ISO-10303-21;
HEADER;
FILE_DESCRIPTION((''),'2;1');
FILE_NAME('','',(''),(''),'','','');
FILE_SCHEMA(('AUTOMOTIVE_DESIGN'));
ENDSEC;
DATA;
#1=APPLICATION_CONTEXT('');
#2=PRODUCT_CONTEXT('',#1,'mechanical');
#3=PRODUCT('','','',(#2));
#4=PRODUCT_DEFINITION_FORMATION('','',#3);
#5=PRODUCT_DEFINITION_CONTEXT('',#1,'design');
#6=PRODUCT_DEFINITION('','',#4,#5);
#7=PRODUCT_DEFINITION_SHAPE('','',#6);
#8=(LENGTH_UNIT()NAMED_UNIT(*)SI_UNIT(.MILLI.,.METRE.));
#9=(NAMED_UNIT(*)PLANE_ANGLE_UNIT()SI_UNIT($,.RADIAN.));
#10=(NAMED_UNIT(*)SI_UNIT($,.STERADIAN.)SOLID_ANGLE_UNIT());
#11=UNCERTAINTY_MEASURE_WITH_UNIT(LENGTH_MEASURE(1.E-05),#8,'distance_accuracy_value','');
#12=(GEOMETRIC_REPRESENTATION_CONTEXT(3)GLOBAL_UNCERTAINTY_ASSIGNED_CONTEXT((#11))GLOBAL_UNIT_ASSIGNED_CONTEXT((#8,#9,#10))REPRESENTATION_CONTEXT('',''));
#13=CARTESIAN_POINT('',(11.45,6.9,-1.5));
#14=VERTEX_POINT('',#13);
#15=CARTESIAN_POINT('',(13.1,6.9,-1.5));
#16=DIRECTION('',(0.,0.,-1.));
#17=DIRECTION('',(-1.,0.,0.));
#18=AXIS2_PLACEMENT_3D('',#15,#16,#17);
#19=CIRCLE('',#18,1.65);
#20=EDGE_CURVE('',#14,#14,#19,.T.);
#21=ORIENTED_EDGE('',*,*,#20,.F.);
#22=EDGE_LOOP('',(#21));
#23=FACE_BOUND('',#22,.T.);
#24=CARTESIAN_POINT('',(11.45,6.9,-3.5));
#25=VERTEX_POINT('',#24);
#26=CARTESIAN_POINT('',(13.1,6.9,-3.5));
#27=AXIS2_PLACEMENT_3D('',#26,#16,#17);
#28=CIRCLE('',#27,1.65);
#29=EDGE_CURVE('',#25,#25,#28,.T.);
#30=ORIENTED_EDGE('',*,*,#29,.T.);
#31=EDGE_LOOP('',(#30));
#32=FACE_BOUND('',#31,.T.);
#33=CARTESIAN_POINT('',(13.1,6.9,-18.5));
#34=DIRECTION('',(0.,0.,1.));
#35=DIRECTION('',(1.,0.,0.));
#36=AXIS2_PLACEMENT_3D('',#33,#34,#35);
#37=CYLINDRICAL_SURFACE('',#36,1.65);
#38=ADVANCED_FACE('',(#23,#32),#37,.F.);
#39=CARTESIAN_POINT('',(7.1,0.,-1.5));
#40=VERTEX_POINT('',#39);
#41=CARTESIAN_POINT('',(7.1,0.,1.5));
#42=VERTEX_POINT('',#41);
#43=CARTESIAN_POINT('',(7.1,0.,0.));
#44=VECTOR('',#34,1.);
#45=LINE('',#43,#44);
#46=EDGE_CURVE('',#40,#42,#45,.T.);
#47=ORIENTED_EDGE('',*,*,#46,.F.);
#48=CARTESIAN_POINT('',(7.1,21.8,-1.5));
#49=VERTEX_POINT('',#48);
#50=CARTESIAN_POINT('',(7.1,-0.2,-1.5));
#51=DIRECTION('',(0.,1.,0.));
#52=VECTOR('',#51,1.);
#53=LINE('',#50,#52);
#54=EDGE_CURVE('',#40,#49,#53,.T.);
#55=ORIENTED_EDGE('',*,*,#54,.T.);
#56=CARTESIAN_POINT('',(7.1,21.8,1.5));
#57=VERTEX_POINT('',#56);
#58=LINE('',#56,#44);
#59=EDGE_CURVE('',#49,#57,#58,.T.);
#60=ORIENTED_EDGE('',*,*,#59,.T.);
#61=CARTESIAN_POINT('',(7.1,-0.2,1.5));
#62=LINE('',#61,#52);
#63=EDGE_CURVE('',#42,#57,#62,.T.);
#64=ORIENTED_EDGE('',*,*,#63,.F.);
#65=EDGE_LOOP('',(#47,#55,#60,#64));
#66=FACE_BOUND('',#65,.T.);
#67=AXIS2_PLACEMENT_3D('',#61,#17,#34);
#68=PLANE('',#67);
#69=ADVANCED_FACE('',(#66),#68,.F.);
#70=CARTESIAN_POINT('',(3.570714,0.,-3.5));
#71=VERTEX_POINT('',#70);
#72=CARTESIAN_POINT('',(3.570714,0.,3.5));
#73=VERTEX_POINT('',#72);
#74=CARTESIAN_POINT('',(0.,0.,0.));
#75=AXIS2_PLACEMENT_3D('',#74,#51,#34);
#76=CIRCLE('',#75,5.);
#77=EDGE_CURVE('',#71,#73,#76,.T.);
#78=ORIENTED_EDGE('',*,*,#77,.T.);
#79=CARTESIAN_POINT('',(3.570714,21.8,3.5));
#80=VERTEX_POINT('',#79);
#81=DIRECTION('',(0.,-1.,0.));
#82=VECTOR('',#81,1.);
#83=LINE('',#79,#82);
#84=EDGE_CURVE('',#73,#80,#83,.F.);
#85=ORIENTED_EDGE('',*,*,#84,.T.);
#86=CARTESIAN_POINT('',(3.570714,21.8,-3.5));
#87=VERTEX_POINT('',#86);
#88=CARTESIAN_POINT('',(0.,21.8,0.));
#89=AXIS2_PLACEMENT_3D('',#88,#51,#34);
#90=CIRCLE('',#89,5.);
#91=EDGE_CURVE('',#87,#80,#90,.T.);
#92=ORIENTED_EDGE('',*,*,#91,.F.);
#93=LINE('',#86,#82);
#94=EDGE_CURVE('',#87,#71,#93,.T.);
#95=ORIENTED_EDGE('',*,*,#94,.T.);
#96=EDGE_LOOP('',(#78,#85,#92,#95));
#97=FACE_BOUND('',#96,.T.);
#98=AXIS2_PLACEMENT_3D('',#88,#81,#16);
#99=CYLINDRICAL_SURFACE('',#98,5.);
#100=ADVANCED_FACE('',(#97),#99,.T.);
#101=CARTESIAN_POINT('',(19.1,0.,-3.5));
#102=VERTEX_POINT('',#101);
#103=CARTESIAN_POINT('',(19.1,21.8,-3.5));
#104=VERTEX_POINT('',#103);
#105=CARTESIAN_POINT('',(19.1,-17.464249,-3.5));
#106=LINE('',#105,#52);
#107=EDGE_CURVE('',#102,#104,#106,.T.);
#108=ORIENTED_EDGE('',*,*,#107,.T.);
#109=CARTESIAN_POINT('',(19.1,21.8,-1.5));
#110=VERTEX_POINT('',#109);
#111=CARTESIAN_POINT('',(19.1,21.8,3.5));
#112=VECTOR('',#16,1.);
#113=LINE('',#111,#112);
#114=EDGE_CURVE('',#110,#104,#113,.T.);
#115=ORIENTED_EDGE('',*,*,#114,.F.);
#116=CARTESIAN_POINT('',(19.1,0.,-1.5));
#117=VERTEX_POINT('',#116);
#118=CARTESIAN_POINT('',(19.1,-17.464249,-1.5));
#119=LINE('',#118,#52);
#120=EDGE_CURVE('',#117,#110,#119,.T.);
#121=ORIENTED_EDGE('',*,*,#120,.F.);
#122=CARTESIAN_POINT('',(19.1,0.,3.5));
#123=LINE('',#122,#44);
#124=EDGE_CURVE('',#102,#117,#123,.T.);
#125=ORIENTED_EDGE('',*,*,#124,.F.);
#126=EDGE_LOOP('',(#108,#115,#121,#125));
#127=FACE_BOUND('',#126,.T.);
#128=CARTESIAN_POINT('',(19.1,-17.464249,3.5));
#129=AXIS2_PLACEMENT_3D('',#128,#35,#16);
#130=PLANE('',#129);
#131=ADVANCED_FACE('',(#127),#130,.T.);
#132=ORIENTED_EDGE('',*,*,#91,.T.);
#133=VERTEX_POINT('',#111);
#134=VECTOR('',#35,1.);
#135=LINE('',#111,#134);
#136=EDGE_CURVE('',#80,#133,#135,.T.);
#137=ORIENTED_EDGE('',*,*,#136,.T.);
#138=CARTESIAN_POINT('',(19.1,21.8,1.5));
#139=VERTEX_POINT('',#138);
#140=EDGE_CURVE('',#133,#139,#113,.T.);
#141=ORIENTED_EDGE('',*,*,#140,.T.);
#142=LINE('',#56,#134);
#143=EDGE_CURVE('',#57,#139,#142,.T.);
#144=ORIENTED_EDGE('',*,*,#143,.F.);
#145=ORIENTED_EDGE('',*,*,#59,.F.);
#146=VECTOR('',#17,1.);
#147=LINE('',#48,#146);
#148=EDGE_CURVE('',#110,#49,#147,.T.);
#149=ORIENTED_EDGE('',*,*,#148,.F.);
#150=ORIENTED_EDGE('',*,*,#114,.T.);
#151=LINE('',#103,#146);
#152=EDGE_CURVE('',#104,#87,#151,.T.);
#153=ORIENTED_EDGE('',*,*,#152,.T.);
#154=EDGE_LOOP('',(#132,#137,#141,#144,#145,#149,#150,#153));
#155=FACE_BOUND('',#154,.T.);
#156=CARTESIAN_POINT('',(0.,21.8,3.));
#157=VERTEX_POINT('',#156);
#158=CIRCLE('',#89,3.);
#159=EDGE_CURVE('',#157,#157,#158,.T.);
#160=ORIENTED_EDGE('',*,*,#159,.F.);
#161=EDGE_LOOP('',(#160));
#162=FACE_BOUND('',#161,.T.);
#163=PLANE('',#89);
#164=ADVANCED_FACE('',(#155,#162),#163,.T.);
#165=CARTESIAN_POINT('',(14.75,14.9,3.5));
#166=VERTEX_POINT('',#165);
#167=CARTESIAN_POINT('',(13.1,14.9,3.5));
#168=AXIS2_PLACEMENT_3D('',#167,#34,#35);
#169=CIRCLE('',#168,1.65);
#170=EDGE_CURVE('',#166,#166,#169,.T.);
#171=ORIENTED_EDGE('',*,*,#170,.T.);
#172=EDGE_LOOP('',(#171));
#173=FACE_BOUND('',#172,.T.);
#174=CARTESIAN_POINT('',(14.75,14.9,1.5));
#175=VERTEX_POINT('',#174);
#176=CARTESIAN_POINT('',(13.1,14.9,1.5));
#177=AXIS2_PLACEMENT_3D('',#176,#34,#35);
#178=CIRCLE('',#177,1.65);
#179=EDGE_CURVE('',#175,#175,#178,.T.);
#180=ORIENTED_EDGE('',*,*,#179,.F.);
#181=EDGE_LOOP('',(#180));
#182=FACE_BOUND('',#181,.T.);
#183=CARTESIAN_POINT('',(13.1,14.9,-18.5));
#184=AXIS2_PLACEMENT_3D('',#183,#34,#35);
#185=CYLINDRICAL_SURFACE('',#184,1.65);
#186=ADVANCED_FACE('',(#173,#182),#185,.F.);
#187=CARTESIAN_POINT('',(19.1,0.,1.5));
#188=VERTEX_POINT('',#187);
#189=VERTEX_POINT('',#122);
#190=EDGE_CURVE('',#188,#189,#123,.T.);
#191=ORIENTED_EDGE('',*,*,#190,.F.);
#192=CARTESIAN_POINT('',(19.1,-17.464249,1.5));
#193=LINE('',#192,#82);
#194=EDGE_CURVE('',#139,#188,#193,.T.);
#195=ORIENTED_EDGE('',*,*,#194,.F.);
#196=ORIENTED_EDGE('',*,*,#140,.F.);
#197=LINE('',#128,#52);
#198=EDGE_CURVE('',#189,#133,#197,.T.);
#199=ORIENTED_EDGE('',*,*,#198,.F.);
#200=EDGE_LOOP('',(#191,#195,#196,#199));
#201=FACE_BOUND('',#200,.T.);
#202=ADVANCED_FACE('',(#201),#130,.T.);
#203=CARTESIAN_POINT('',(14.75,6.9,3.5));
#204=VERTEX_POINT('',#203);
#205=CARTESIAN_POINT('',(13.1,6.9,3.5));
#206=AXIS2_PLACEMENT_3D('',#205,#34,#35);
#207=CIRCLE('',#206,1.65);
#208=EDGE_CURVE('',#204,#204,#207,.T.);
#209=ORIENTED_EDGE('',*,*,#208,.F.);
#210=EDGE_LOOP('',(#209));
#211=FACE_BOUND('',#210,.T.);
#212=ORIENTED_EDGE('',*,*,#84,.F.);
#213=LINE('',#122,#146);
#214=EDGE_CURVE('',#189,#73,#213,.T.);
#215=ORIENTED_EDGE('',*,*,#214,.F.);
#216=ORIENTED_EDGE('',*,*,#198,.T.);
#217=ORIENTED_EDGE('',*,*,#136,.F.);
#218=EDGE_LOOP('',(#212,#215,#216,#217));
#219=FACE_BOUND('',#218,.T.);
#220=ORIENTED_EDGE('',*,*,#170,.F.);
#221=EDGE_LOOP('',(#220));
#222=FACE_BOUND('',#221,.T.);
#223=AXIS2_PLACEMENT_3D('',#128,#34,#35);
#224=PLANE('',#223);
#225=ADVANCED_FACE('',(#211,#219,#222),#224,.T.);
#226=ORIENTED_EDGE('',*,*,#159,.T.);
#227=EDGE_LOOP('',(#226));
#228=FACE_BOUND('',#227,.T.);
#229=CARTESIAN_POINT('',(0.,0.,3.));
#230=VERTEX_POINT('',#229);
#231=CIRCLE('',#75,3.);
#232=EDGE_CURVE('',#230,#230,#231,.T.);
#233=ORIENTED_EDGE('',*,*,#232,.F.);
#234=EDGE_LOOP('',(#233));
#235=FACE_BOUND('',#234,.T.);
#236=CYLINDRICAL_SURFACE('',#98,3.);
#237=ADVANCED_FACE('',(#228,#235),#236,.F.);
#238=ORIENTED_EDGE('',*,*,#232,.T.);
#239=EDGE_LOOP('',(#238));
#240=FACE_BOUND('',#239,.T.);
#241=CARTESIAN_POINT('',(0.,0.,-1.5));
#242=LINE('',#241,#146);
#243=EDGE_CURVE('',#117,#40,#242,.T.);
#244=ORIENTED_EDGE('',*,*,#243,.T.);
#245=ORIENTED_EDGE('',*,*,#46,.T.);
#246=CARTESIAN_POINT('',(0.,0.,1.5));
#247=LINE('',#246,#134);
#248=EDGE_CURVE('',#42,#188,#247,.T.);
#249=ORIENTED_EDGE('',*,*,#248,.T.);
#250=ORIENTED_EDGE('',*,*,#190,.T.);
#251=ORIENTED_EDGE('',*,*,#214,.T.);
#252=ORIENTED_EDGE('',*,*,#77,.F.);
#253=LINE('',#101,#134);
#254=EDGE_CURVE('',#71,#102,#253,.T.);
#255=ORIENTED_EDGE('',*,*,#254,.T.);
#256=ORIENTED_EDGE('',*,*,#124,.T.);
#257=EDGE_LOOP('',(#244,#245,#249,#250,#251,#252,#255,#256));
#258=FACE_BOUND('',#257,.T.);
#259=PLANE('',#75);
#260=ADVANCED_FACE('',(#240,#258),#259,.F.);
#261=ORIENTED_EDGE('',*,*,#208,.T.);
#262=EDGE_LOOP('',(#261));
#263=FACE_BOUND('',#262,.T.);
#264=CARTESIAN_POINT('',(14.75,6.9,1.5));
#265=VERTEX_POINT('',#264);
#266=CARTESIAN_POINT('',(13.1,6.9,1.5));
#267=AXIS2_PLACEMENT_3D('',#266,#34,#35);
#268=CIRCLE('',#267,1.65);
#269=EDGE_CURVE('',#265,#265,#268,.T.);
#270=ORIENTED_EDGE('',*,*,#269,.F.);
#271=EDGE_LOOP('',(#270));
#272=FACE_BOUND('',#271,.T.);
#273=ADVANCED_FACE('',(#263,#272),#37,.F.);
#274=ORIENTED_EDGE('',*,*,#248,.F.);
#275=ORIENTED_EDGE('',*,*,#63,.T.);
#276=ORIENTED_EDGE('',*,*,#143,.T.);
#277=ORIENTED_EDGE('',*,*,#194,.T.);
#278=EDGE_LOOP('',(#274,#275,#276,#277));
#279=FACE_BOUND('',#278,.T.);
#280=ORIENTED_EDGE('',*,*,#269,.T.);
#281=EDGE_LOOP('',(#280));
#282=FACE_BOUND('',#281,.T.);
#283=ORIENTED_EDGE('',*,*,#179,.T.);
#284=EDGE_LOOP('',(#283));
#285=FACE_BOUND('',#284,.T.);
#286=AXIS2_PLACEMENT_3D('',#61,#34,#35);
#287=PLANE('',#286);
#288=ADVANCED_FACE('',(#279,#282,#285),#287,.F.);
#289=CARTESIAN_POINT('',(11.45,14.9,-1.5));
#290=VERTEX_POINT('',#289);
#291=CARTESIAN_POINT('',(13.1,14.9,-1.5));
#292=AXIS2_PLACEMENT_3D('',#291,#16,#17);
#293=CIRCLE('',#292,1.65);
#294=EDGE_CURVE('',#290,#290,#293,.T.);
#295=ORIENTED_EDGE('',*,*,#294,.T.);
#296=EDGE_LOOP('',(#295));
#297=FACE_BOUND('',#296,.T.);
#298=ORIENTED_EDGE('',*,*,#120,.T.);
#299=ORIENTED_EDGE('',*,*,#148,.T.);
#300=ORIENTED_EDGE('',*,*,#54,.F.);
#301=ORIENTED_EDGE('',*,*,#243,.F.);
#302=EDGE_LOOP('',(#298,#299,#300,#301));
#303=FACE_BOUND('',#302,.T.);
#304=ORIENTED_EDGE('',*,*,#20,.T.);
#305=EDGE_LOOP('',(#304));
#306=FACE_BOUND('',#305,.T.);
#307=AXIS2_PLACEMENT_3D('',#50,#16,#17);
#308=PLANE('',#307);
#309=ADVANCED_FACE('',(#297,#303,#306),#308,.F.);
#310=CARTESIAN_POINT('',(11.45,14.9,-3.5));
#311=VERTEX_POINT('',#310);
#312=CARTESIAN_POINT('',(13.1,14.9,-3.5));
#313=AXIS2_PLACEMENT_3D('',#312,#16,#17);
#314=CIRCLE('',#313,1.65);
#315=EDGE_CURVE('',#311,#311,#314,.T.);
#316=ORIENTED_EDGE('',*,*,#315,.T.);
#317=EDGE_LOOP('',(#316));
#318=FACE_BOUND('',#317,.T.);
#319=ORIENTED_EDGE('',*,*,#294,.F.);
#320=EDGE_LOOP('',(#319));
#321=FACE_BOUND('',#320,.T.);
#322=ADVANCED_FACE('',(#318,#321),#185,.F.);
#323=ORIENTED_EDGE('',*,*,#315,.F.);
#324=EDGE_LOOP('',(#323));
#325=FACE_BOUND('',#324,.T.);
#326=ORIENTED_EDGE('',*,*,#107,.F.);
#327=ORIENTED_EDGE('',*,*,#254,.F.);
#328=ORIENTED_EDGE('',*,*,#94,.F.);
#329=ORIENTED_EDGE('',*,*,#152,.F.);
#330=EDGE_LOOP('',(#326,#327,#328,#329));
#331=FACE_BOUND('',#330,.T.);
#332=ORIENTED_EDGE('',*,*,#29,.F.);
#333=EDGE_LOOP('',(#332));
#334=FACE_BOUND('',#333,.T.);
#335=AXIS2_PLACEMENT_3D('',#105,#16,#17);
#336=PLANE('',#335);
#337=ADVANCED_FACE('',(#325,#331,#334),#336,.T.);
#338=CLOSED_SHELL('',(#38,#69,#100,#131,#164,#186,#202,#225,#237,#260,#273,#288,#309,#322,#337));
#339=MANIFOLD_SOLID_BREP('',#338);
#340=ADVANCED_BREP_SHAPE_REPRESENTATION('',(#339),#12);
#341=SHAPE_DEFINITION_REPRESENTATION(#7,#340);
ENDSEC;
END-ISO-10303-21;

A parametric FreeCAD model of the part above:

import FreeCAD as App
import Part
import Sketcher

V = App.Vector
Q = App.Units.Quantity

doc = App.newDocument("Part")
body = doc.addObject("PartDesign::Body", "Body")

sketch1 = body.newObject("Sketcher::SketchObject", "Sketch")
sketch1.AttachmentSupport = (doc.getObject("XZ_Plane"), [""])
sketch1.MapMode = "FlatFace"
sketch1.addGeometry(Part.Circle(V(0, 0, 0), V(0, 0, 1), 5), False)
sketch1.addGeometry(Part.Circle(V(0, 0, 0), V(0, 0, 1), 3), False)
sketch1.addConstraint(Sketcher.Constraint("Coincident", 0, 3, -1, 1))
sketch1.addConstraint(Sketcher.Constraint("Coincident", 1, 3, -1, 1))
sketch1.addConstraint(Sketcher.Constraint("Diameter", 0, Q("10 mm")))
sketch1.addConstraint(Sketcher.Constraint("Diameter", 1, Q("6 mm")))
pad1 = body.newObject("PartDesign::Pad", "Pad")
pad1.Profile = sketch1
pad1.Length = 21.8
pad1.Reversed = True

sketch2 = body.newObject("Sketcher::SketchObject", "Sketch001")
sketch2.AttachmentSupport = (doc.getObject("XZ_Plane"), [""])
sketch2.MapMode = "FlatFace"
sketch2.AttachmentOffset = App.Placement(V(0, 0, -21.8), App.Rotation())
sketch2.addGeometry(Part.LineSegment(V(3, -4, 0), V(3, 4, 0)), False)
sketch2.addGeometry(Part.LineSegment(V(3, 4, 0), V(19, 4, 0)), False)
sketch2.addGeometry(Part.LineSegment(V(19, 4, 0), V(19, -4, 0)), False)
sketch2.addGeometry(Part.LineSegment(V(19, -4, 0), V(3, -4, 0)), False)
sketch2.addConstraint(Sketcher.Constraint("Coincident", 0, 2, 1, 1))
sketch2.addConstraint(Sketcher.Constraint("Coincident", 1, 2, 2, 1))
sketch2.addConstraint(Sketcher.Constraint("Coincident", 2, 2, 3, 1))
sketch2.addConstraint(Sketcher.Constraint("Coincident", 3, 2, 0, 1))
sketch2.addConstraint(Sketcher.Constraint("Vertical", 0))
sketch2.addConstraint(Sketcher.Constraint("Horizontal", 1))
sketch2.addConstraint(Sketcher.Constraint("Vertical", 2))
sketch2.addConstraint(Sketcher.Constraint("Horizontal", 3))
sketch2.addConstraint(Sketcher.Constraint("DistanceX", 1, 1, 1, 2, Q("16 mm")))
sketch2.addConstraint(Sketcher.Constraint("DistanceY", 0, 1, 0, 2, Q("7 mm")))
sketch2.addConstraint(Sketcher.Constraint("DistanceX", -1, 1, 0, 2, Q("3.1 mm")))
sketch2.addConstraint(Sketcher.Constraint("DistanceY", -1, 1, 0, 2, Q("3.5 mm")))
pad2 = body.newObject("PartDesign::Pad", "Pad001")
pad2.Profile = sketch2
pad2.Length = 21.8

sketch3 = body.newObject("Sketcher::SketchObject", "Sketch002")
sketch3.AttachmentSupport = (doc.getObject("XZ_Plane"), [""])
sketch3.MapMode = "FlatFace"
sketch3.AttachmentOffset = App.Placement(V(0, 0, -21.8), App.Rotation())
sketch3.addGeometry(Part.LineSegment(V(7.1, -1.5, 0), V(7.1, 1.5, 0)), False)
sketch3.addGeometry(Part.LineSegment(V(7.1, 1.5, 0), V(19.1, 1.5, 0)), False)
sketch3.addGeometry(Part.LineSegment(V(19.1, 1.5, 0), V(19.1, -1.5, 0)), False)
sketch3.addGeometry(Part.LineSegment(V(19.1, -1.5, 0), V(7.1, -1.5, 0)), False)
sketch3.addConstraint(Sketcher.Constraint("Coincident", 0, 2, 1, 1))
sketch3.addConstraint(Sketcher.Constraint("Coincident", 1, 2, 2, 1))
sketch3.addConstraint(Sketcher.Constraint("Coincident", 2, 2, 3, 1))
sketch3.addConstraint(Sketcher.Constraint("Coincident", 3, 2, 0, 1))
sketch3.addConstraint(Sketcher.Constraint("Vertical", 0))
sketch3.addConstraint(Sketcher.Constraint("Horizontal", 1))
sketch3.addConstraint(Sketcher.Constraint("Vertical", 2))
sketch3.addConstraint(Sketcher.Constraint("Horizontal", 3))
sketch3.addConstraint(Sketcher.Constraint("DistanceX", 1, 1, 1, 2, Q("12 mm")))
sketch3.addConstraint(Sketcher.Constraint("DistanceY", 0, 1, 0, 2, Q("3 mm")))
sketch3.addConstraint(Sketcher.Constraint("DistanceX", -1, 1, 0, 2, Q("7.1 mm")))
sketch3.addConstraint(Sketcher.Constraint("DistanceY", -1, 1, 0, 2, Q("1.5 mm")))
pocket1 = body.newObject("PartDesign::Pocket", "Pocket")
pocket1.Profile = sketch3
pocket1.Length = 22
pocket1.Reversed = True

sketch4 = body.newObject("Sketcher::SketchObject", "Sketch003")
sketch4.AttachmentSupport = (doc.getObject("XY_Plane"), [""])
sketch4.MapMode = "FlatFace"
sketch4.AttachmentOffset = App.Placement(V(0, 0, 3.5), App.Rotation())
sketch4.addGeometry(Part.Circle(V(13.1, 14.9, 0), V(0, 0, 1), 1.6), False)
sketch4.addGeometry(Part.Circle(V(13.1, 6.9, 0), V(0, 0, 1), 1.6), False)
sketch4.addConstraint(Sketcher.Constraint("Equal", 0, 1))
sketch4.addConstraint(Sketcher.Constraint("Vertical", 0, 3, 1, 3))
sketch4.addConstraint(Sketcher.Constraint("Diameter", 0, Q("3.3 mm")))
sketch4.addConstraint(Sketcher.Constraint("DistanceY", 1, 3, 0, 3, Q("8 mm")))
sketch4.addConstraint(Sketcher.Constraint("DistanceX", -1, 1, 0, 3, Q("13.1 mm")))
sketch4.addConstraint(Sketcher.Constraint("DistanceY", -1, 1, 0, 3, Q("14.9 mm")))
pocket2 = body.newObject("PartDesign::Pocket", "Pocket001")
pocket2.Profile = sketch4
pocket2.Length = 22

doc.recompute()
